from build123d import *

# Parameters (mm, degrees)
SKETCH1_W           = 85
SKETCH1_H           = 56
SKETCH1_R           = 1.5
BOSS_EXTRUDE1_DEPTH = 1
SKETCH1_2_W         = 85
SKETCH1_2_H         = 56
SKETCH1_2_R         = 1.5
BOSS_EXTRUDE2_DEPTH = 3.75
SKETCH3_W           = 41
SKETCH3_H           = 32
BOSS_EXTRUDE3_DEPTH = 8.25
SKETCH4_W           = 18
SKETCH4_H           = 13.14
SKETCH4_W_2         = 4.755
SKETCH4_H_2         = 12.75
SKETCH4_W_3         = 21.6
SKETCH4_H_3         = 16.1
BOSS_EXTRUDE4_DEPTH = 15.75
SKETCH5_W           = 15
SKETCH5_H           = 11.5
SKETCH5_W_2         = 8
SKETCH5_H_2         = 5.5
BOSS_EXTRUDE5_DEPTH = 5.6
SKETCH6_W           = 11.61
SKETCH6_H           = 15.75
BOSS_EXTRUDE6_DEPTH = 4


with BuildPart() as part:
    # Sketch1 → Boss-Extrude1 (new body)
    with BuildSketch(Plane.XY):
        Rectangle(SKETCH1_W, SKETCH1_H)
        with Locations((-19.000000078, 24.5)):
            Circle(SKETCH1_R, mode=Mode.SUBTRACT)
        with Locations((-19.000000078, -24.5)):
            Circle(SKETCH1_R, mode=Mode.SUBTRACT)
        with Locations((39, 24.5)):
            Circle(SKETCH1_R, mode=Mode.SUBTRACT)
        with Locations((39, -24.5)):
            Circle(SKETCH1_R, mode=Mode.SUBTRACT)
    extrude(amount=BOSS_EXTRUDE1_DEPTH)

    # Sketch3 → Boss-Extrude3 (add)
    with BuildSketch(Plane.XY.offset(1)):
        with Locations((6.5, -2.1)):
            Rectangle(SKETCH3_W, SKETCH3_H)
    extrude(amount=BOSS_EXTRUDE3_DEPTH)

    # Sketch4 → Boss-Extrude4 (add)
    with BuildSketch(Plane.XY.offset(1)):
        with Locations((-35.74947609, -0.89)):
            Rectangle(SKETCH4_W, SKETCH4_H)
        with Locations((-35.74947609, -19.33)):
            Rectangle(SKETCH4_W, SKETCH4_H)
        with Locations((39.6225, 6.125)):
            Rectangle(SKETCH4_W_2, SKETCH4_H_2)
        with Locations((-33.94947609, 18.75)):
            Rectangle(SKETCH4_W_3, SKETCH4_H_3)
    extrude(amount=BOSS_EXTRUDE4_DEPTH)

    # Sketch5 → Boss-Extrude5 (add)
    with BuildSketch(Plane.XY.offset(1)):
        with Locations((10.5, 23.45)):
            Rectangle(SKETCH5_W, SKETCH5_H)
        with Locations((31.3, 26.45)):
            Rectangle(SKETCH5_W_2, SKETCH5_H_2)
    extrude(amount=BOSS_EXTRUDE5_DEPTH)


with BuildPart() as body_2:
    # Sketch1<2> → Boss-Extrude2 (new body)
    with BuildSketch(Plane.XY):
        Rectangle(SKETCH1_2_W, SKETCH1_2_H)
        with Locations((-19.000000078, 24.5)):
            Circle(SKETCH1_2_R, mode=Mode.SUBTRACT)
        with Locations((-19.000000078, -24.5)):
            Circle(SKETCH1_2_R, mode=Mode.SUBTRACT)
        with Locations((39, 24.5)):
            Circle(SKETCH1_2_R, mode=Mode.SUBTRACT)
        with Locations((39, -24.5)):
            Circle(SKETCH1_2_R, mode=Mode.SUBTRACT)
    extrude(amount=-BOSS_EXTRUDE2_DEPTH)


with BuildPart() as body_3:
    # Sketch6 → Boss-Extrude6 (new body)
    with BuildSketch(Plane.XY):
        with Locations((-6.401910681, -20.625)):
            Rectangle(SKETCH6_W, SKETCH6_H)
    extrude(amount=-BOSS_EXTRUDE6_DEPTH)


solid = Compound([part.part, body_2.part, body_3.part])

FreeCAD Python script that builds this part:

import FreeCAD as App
import Part
import Sketcher

V = App.Vector

doc = App.newDocument("Part")
body = doc.addObject("PartDesign::Body", "Body")

sketch1 = doc.addObject("Sketcher::SketchObject", "Sketch")
body.addObject(sketch1)
sketch1.AttachmentSupport = (doc.XY_Plane, [""])
sketch1.MapMode = "FlatFace"
sketch1.addGeometry([
    Part.LineSegment(V(-42.5, 28, 0), V(-42.5, -28, 0)),
    Part.LineSegment(V(-42.5, -28, 0), V(42.5, -28, 0)),
    Part.LineSegment(V(42.5, -28, 0), V(42.5, 28, 0)),
    Part.LineSegment(V(42.5, 28, 0), V(-42.5, 28, 0)),
    Part.Circle(V(-19, -24.5, 0), V(0, 0, 1), 1.5),
    Part.Circle(V(39, -24.5, 0), V(0, 0, 1), 1.5),
    Part.Circle(V(-19, 24.5, 0), V(0, 0, 1), 1.5),
    Part.Circle(V(39, 24.5, 0), V(0, 0, 1), 1.5),
], False)
sketch1.addConstraint([
    Sketcher.Constraint("Coincident", 0, 2, 1, 1),
    Sketcher.Constraint("Coincident", 1, 2, 2, 1),
    Sketcher.Constraint("Coincident", 2, 2, 3, 1),
    Sketcher.Constraint("Coincident", 3, 2, 0, 1),
    Sketcher.Constraint("Vertical", 0),
    Sketcher.Constraint("Horizontal", 1),
    Sketcher.Constraint("Vertical", 2),
    Sketcher.Constraint("Horizontal", 3),
    Sketcher.Constraint("Equal", 4, 5),
    Sketcher.Constraint("Equal", 5, 6),
    Sketcher.Constraint("Equal", 6, 7),
    Sketcher.Constraint("Symmetric", 0, 2, 2, 2, -1, 1),
    Sketcher.Constraint("Symmetric", 4, 3, 6, 3, -1),
    Sketcher.Constraint("Symmetric", 5, 3, 7, 3, -1),
    Sketcher.Constraint("Horizontal", 4, 3, 5, 3),
    Sketcher.Constraint("Diameter", 4, 3.0),
    Sketcher.Constraint("DistanceX", 1, 1, 1, 2, 85.0),
    Sketcher.Constraint("DistanceY", 0, 2, 0, 1, 56.0),
    Sketcher.Constraint("DistanceX", 4, 3, -1, 1, 19.0),
    Sketcher.Constraint("DistanceX", -1, 1, 5, 3, 39.0),
    Sketcher.Constraint("DistanceY", 4, 3, 6, 3, 49.0),
])
pad1 = doc.addObject("PartDesign::Pad", "Pad")
body.addObject(pad1)
pad1.Profile = sketch1
pad1.Length = 1

sketch2 = doc.addObject("Sketcher::SketchObject", "Sketch001")
body.addObject(sketch2)
sketch2.AttachmentSupport = (doc.XY_Plane, [""])
sketch2.MapMode = "FlatFace"
sketch2.AttachmentOffset = App.Placement(V(0, 0, 1), App.Rotation())
sketch2.addGeometry([
    Part.LineSegment(V(-14, 14, 0), V(-14, -18, 0)),
    Part.LineSegment(V(-14, -18, 0), V(27, -18, 0)),
    Part.LineSegment(V(27, -18, 0), V(27, 14, 0)),
    Part.LineSegment(V(27, 14, 0), V(-14, 14, 0)),
], False)
sketch2.addConstraint([
    Sketcher.Constraint("Coincident", 0, 2, 1, 1),
    Sketcher.Constraint("Coincident", 1, 2, 2, 1),
    Sketcher.Constraint("Coincident", 2, 2, 3, 1),
    Sketcher.Constraint("Coincident", 3, 2, 0, 1),
    Sketcher.Constraint("Vertical", 0),
    Sketcher.Constraint("Horizontal", 1),
    Sketcher.Constraint("Vertical", 2),
    Sketcher.Constraint("Horizontal", 3),
    Sketcher.Constraint("DistanceX", 1, 1, 1, 2, 41.0),
    Sketcher.Constraint("DistanceY", 0, 2, 0, 1, 32.0),
    Sketcher.Constraint("DistanceX", 0, 2, -1, 1, 14.0),
    Sketcher.Constraint("DistanceY", 0, 2, -1, 1, 18.1),
])
pad2 = doc.addObject("PartDesign::Pad", "Pad001")
body.addObject(pad2)
pad2.Profile = sketch2
pad2.Length = 8.25

sketch3 = doc.addObject("Sketcher::SketchObject", "Sketch002")
body.addObject(sketch3)
sketch3.AttachmentSupport = (doc.XY_Plane, [""])
sketch3.MapMode = "FlatFace"
sketch3.AttachmentOffset = App.Placement(V(0, 0, 1), App.Rotation())
sketch3.addGeometry([
    Part.LineSegment(V(-44.7, 5.7, 0), V(-44.7, -7.5, 0)),
    Part.LineSegment(V(-44.7, -7.5, 0), V(-26.7, -7.5, 0)),
    Part.LineSegment(V(-26.7, -7.5, 0), V(-26.7, 5.7, 0)),
    Part.LineSegment(V(-26.7, 5.7, 0), V(-44.7, 5.7, 0)),
    Part.LineSegment(V(-44.7, -12.8, 0), V(-44.7, -25.9, 0)),
    Part.LineSegment(V(-44.7, -25.9, 0), V(-26.7, -25.9, 0)),
    Part.LineSegment(V(-26.7, -25.9, 0), V(-26.7, -12.8, 0)),
    Part.LineSegment(V(-26.7, -12.8, 0), V(-44.7, -12.8, 0)),
    Part.LineSegment(V(37.2, 12.5, 0), V(37.2, -0.2, 0)),
    Part.LineSegment(V(37.2, -0.2, 0), V(42, -0.2, 0)),
    Part.LineSegment(V(42, -0.2, 0), V(42, 12.5, 0)),
    Part.LineSegment(V(42, 12.5, 0), V(37.2, 12.5, 0)),
    Part.LineSegment(V(-44.7, 26.8, 0), V(-44.7, 10.7, 0)),
    Part.LineSegment(V(-44.7, 10.7, 0), V(-23.1, 10.7, 0)),
    Part.LineSegment(V(-23.1, 10.7, 0), V(-23.1, 26.8, 0)),
    Part.LineSegment(V(-23.1, 26.8, 0), V(-44.7, 26.8, 0)),
], False)
sketch3.addConstraint([
    Sketcher.Constraint("Coincident", 0, 2, 1, 1),
    Sketcher.Constraint("Coincident", 1, 2, 2, 1),
    Sketcher.Constraint("Coincident", 2, 2, 3, 1),
    Sketcher.Constraint("Coincident", 3, 2, 0, 1),
    Sketcher.Constraint("Coincident", 4, 2, 5, 1),
    Sketcher.Constraint("Coincident", 5, 2, 6, 1),
    Sketcher.Constraint("Coincident", 6, 2, 7, 1),
    Sketcher.Constraint("Coincident", 7, 2, 4, 1),
    Sketcher.Constraint("Coincident", 8, 2, 9, 1),
    Sketcher.Constraint("Coincident", 9, 2, 10, 1),
    Sketcher.Constraint("Coincident", 10, 2, 11, 1),
    Sketcher.Constraint("Coincident", 11, 2, 8, 1),
    Sketcher.Constraint("Coincident", 12, 2, 13, 1),
    Sketcher.Constraint("Coincident", 13, 2, 14, 1),
    Sketcher.Constraint("Coincident", 14, 2, 15, 1),
    Sketcher.Constraint("Coincident", 15, 2, 12, 1),
    Sketcher.Constraint("Vertical", 0),
    Sketcher.Constraint("Horizontal", 1),
    Sketcher.Constraint("Vertical", 2),
    Sketcher.Constraint("Horizontal", 3),
    Sketcher.Constraint("Vertical", 4),
    Sketcher.Constraint("Horizontal", 5),
    Sketcher.Constraint("Vertical", 6),
    Sketcher.Constraint("Horizontal", 7),
    Sketcher.Constraint("Vertical", 8),
    Sketcher.Constraint("Horizontal", 9),
    Sketcher.Constraint("Vertical", 10),
    Sketcher.Constraint("Horizontal", 11),
    Sketcher.Constraint("Vertical", 12),
    Sketcher.Constraint("Horizontal", 13),
    Sketcher.Constraint("Vertical", 14),
    Sketcher.Constraint("Horizontal", 15),
    Sketcher.Constraint("Vertical", 3, 2, 4, 2),
    Sketcher.Constraint("Vertical", 2, 2, 5, 2),
    Sketcher.Constraint("Vertical", 7, 2, 12, 2),
    Sketcher.Constraint("Equal", 2, 4),
    Sketcher.Constraint("DistanceX", 1, 1, 1, 2, 18.0),
    Sketcher.Constraint("DistanceX", 13, 1, 13, 2, 21.6),
    Sketcher.Constraint("DistanceY", 12, 2, 12, 1, 16.1),
    Sketcher.Constraint("DistanceX", -1, 1, 9, 2, 42.0),
    Sketcher.Constraint("DistanceY", 0, 2, 0, 1, 13.14),
    Sketcher.Constraint("DistanceY", 8, 2, 8, 1, 12.75),
    Sketcher.Constraint("DistanceY", 4, 2, -1, 1, 25.9),
    Sketcher.Constraint("DistanceY", -1, 1, 10, 2, 12.5),
    Sketcher.Constraint("DistanceY", -1, 1, 12, 2, 10.7),
    Sketcher.Constraint("DistanceY", 6, 2, 1, 2, 5.3),
    Sketcher.Constraint("DistanceX", 9, 1, 9, 2, 4.755),
    Sketcher.Constraint("DistanceX", 0, 2, -1, 1, 44.749476),
])
pad3 = doc.addObject("PartDesign::Pad", "Pad002")
body.addObject(pad3)
pad3.Profile = sketch3
pad3.Length = 15.75

sketch4 = doc.addObject("Sketcher::SketchObject", "Sketch003")
body.addObject(sketch4)
sketch4.AttachmentSupport = (doc.XY_Plane, [""])
sketch4.MapMode = "FlatFace"
sketch4.AttachmentOffset = App.Placement(V(0, 0, 1), App.Rotation())
sketch4.addGeometry([
    Part.LineSegment(V(3, 29, 0), V(3, 18, 0)),
    Part.LineSegment(V(3, 18, 0), V(18, 18, 0)),
    Part.LineSegment(V(18, 18, 0), V(18, 29, 0)),
    Part.LineSegment(V(18, 29, 0), V(3, 29, 0)),
    Part.LineSegment(V(27, 29, 0), V(27, 24, 0)),
    Part.LineSegment(V(27, 24, 0), V(35, 24, 0)),
    Part.LineSegment(V(35, 24, 0), V(35, 29, 0)),
    Part.LineSegment(V(35, 29, 0), V(27, 29, 0)),
], False)
sketch4.addConstraint([
    Sketcher.Constraint("Coincident", 0, 2, 1, 1),
    Sketcher.Constraint("Coincident", 1, 2, 2, 1),
    Sketcher.Constraint("Coincident", 2, 2, 3, 1),
    Sketcher.Constraint("Coincident", 3, 2, 0, 1),
    Sketcher.Constraint("Coincident", 4, 2, 5, 1),
    Sketcher.Constraint("Coincident", 5, 2, 6, 1),
    Sketcher.Constraint("Coincident", 6, 2, 7, 1),
    Sketcher.Constraint("Coincident", 7, 2, 4, 1),
    Sketcher.Constraint("Vertical", 0),
    Sketcher.Constraint("Horizontal", 1),
    Sketcher.Constraint("Vertical", 2),
    Sketcher.Constraint("Horizontal", 3),
    Sketcher.Constraint("Vertical", 4),
    Sketcher.Constraint("Horizontal", 5),
    Sketcher.Constraint("Vertical", 6),
    Sketcher.Constraint("Horizontal", 7),
    Sketcher.Constraint("Horizontal", 3, 2, 6, 2),
    Sketcher.Constraint("DistanceX", 1, 1, 1, 2, 15.0),
    Sketcher.Constraint("DistanceX", 5, 1, 5, 2, 8.0),
    Sketcher.Constraint("DistanceY", 0, 2, 0, 1, 11.5),
    Sketcher.Constraint("DistanceY", 4, 2, 4, 1, 5.5),
    Sketcher.Constraint("DistanceX", -1, 1, 0, 2, 3.0),
    Sketcher.Constraint("DistanceY", -1, 1, 0, 2, 17.7),
    Sketcher.Constraint("DistanceX", -1, 1, 4, 2, 27.3),
])
pad4 = doc.addObject("PartDesign::Pad", "Pad003")
body.addObject(pad4)
pad4.Profile = sketch4
pad4.Length = 5.6
body2 = doc.addObject("PartDesign::Body", "Body001")

sketch5 = doc.addObject("Sketcher::SketchObject", "Sketch004")
body2.addObject(sketch5)
sketch5.AttachmentSupport = (doc.getObject("XY_Plane001"), [""])
sketch5.MapMode = "FlatFace"
sketch5.addGeometry([
    Part.LineSegment(V(-42.5, 28, 0), V(-42.5, -28, 0)),
    Part.LineSegment(V(-42.5, -28, 0), V(42.5, -28, 0)),
    Part.LineSegment(V(42.5, -28, 0), V(42.5, 28, 0)),
    Part.LineSegment(V(42.5, 28, 0), V(-42.5, 28, 0)),
    Part.Circle(V(-19, -24.5, 0), V(0, 0, 1), 1.5),
    Part.Circle(V(39, -24.5, 0), V(0, 0, 1), 1.5),
    Part.Circle(V(-19, 24.5, 0), V(0, 0, 1), 1.5),
    Part.Circle(V(39, 24.5, 0), V(0, 0, 1), 1.5),
], False)
sketch5.addConstraint([
    Sketcher.Constraint("Coincident", 0, 2, 1, 1),
    Sketcher.Constraint("Coincident", 1, 2, 2, 1),
    Sketcher.Constraint("Coincident", 2, 2, 3, 1),
    Sketcher.Constraint("Coincident", 3, 2, 0, 1),
    Sketcher.Constraint("Vertical", 0),
    Sketcher.Constraint("Horizontal", 1),
    Sketcher.Constraint("Vertical", 2),
    Sketcher.Constraint("Horizontal", 3),
    Sketcher.Constraint("Equal", 4, 5),
    Sketcher.Constraint("Equal", 5, 6),
    Sketcher.Constraint("Equal", 6, 7),
    Sketcher.Constraint("Symmetric", 0, 2, 2, 2, -1, 1),
    Sketcher.Constraint("Symmetric", 4, 3, 6, 3, -1),
    Sketcher.Constraint("Symmetric", 5, 3, 7, 3, -1),
    Sketcher.Constraint("Horizontal", 4, 3, 5, 3),
    Sketcher.Constraint("Diameter", 4, 3.0),
    Sketcher.Constraint("DistanceX", 1, 1, 1, 2, 85.0),
    Sketcher.Constraint("DistanceY", 0, 2, 0, 1, 56.0),
    Sketcher.Constraint("DistanceX", 4, 3, -1, 1, 19.0),
    Sketcher.Constraint("DistanceX", -1, 1, 5, 3, 39.0),
    Sketcher.Constraint("DistanceY", 4, 3, 6, 3, 49.0),
])
pad5 = doc.addObject("PartDesign::Pad", "Pad004")
body2.addObject(pad5)
pad5.Profile = sketch5
pad5.Length = 3.75
pad5.Reversed = True
body3 = doc.addObject("PartDesign::Body", "Body002")

sketch6 = doc.addObject("Sketcher::SketchObject", "Sketch005")
body3.addObject(sketch6)
sketch6.AttachmentSupport = (doc.getObject("XY_Plane002"), [""])
sketch6.MapMode = "FlatFace"
sketch6.addGeometry([
    Part.LineSegment(V(-12, -13, 0), V(-12, -28, 0)),
    Part.LineSegment(V(-12, -28, 0), V(-1, -28, 0)),
    Part.LineSegment(V(-1, -28, 0), V(-1, -13, 0)),
    Part.LineSegment(V(-1, -13, 0), V(-12, -13, 0)),
], False)
sketch6.addConstraint([
    Sketcher.Constraint("Coincident", 0, 2, 1, 1),
    Sketcher.Constraint("Coincident", 1, 2, 2, 1),
    Sketcher.Constraint("Coincident", 2, 2, 3, 1),
    Sketcher.Constraint("Coincident", 3, 2, 0, 1),
    Sketcher.Constraint("Vertical", 0),
    Sketcher.Constraint("Horizontal", 1),
    Sketcher.Constraint("Vertical", 2),
    Sketcher.Constraint("Horizontal", 3),
    Sketcher.Constraint("DistanceX", 1, 1, 1, 2, 11.61),
    Sketcher.Constraint("DistanceY", 0, 2, 0, 1, 15.75),
    Sketcher.Constraint("DistanceY", 0, 2, -1, 1, 28.5),
    Sketcher.Constraint("DistanceX", 0, 2, -1, 1, 12.206911),
])
pad6 = doc.addObject("PartDesign::Pad", "Pad005")
body3.addObject(pad6)
pad6.Profile = sketch6
pad6.Length = 4
pad6.Reversed = True

doc.recompute()
